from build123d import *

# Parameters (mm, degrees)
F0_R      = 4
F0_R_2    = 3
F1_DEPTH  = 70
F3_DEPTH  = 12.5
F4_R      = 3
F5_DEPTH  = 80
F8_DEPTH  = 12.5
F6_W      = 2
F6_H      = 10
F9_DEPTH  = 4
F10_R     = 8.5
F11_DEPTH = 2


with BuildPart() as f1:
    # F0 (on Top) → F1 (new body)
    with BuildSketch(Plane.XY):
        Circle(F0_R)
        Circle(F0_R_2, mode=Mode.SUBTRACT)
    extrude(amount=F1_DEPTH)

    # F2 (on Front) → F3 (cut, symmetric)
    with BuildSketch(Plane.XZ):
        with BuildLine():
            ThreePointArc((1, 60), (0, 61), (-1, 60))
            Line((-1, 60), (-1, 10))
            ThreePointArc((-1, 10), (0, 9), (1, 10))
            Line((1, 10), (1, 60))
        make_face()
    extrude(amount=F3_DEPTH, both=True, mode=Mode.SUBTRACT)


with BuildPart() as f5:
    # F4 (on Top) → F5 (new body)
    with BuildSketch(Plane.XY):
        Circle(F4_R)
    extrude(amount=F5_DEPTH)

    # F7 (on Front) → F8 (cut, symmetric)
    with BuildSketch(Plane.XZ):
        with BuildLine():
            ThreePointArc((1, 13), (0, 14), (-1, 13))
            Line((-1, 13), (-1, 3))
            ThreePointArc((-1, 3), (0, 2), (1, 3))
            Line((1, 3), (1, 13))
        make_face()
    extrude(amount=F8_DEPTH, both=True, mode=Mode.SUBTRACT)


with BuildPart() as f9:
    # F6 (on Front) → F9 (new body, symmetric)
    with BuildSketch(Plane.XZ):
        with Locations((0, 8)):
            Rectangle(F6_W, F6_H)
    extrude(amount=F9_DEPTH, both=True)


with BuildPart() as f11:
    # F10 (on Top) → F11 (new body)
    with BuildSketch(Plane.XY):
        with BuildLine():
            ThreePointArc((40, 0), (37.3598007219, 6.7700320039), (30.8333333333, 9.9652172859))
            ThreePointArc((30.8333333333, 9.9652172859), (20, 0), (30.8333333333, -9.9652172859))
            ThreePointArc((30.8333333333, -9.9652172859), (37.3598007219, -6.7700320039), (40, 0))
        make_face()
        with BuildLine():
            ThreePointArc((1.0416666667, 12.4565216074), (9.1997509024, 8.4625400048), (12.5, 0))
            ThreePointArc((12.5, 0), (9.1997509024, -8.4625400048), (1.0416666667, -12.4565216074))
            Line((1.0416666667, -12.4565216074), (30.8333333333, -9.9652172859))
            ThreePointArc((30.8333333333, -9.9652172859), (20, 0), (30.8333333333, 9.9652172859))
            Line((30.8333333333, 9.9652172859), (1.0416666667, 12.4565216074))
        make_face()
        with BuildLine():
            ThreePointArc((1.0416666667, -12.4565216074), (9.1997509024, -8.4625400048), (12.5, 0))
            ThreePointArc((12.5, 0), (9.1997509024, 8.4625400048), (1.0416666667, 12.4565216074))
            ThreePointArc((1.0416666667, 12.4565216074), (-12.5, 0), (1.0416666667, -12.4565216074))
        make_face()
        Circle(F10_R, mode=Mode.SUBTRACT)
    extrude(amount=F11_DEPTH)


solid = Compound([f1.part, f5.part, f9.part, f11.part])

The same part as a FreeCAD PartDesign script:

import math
import FreeCAD as App
import Part
import Sketcher
from FreeCAD import Vector


def add_polygon(sketch, points):
    """Adds a closed chain of lines whose ends are joined by coincident constraints."""
    first, n = sketch.GeometryCount, len(points)
    for a, b in zip(points, points[1:] + points[:1]):
        sketch.addGeometry(Part.LineSegment(App.Vector(*a, 0), App.Vector(*b, 0)), False)
    for i in range(n):
        sketch.addConstraint(Sketcher.Constraint("Coincident", first + i, 2, first + (i + 1) % n, 1))

doc = App.newDocument("Part")
body = doc.addObject("PartDesign::Body", "Body")

# Sketch on XY plane
sketch1 = body.newObject("Sketcher::SketchObject", "Sketch")
sketch1.AttachmentSupport = (doc.getObject("XY_Plane"), [""])
sketch1.MapMode = "FlatFace"
sketch1.addGeometry([
    Part.Circle(Vector(0, 0, 0), Vector(0, 0, 1), 4),
    Part.Circle(Vector(0, 0, 0), Vector(0, 0, 1), 3),
], False)
sketch1.addConstraint([
    Sketcher.Constraint("Coincident", 0, 3, -1, 1),
    Sketcher.Constraint("Coincident", 1, 3, -1, 1),
    Sketcher.Constraint("Diameter", 0, 8.0),
    Sketcher.Constraint("Diameter", 1, 6.0),
])
pad1 = body.newObject("PartDesign::Pad", "Pad")
pad1.Profile = sketch1
pad1.Length = 70

# Sketch on XZ plane
sketch2 = body.newObject("Sketcher::SketchObject", "Sketch001")
sketch2.AttachmentSupport = (doc.getObject("XZ_Plane"), [""])
sketch2.MapMode = "FlatFace"
sketch2.addGeometry([
    Part.ArcOfCircle(Part.Circle(Vector(0, 60, 0), Vector(0, 0, 1), 1), math.radians(0), math.radians(180)),
    Part.LineSegment(Vector(-1, 60, 0), Vector(-1, 10, 0)),
    Part.ArcOfCircle(Part.Circle(Vector(0, 10, 0), Vector(0, 0, 1), 1), math.radians(180), math.radians(360)),
    Part.LineSegment(Vector(1, 10, 0), Vector(1, 60, 0)),
], False)
sketch2.addConstraint([
    Sketcher.Constraint("Tangent", 0, 2, 1, 1),
    Sketcher.Constraint("Tangent", 1, 2, 2, 1),
    Sketcher.Constraint("Tangent", 2, 2, 3, 1),
    Sketcher.Constraint("Tangent", 3, 2, 0, 1),
    Sketcher.Constraint("Vertical", 1),
    Sketcher.Constraint("Vertical", 3),
    Sketcher.Constraint("PointOnObject", 0, 3, -2),
    Sketcher.Constraint("Radius", 0, 1.0),
    Sketcher.Constraint("DistanceY", 1, 2, 1, 1, 50.0),
    Sketcher.Constraint("DistanceY", -1, 1, 0, 3, 60.0),
])
pocket1 = body.newObject("PartDesign::Pocket", "Pocket")
pocket1.Profile = sketch2
pocket1.Length = 25
pocket1.Midplane = True
body2 = doc.addObject("PartDesign::Body", "Body001")

# Sketch on XY plane
sketch3 = body2.newObject("Sketcher::SketchObject", "Sketch002")
sketch3.AttachmentSupport = (doc.getObject("XY_Plane001"), [""])
sketch3.MapMode = "FlatFace"
sketch3.addGeometry(Part.Circle(Vector(0, 0, 0), Vector(0, 0, 1), 3), False)
sketch3.addConstraint([
    Sketcher.Constraint("Coincident", 0, 3, -1, 1),
    Sketcher.Constraint("Diameter", 0, 6.0),
])
pad2 = body2.newObject("PartDesign::Pad", "Pad001")
pad2.Profile = sketch3
pad2.Length = 80

# Sketch on XZ plane
sketch4 = body2.newObject("Sketcher::SketchObject", "Sketch003")
sketch4.AttachmentSupport = (doc.getObject("XZ_Plane001"), [""])
sketch4.MapMode = "FlatFace"
sketch4.addGeometry([
    Part.ArcOfCircle(Part.Circle(Vector(0, 13, 0), Vector(0, 0, 1), 1), math.radians(0), math.radians(180)),
    Part.LineSegment(Vector(-1, 13, 0), Vector(-1, 3, 0)),
    Part.ArcOfCircle(Part.Circle(Vector(0, 3, 0), Vector(0, 0, 1), 1), math.radians(180), math.radians(360)),
    Part.LineSegment(Vector(1, 3, 0), Vector(1, 13, 0)),
], False)
sketch4.addConstraint([
    Sketcher.Constraint("Tangent", 0, 2, 1, 1),
    Sketcher.Constraint("Tangent", 1, 2, 2, 1),
    Sketcher.Constraint("Tangent", 2, 2, 3, 1),
    Sketcher.Constraint("Tangent", 3, 2, 0, 1),
    Sketcher.Constraint("Vertical", 1),
    Sketcher.Constraint("Vertical", 3),
    Sketcher.Constraint("PointOnObject", 0, 3, -2),
    Sketcher.Constraint("Radius", 0, 1.0),
    Sketcher.Constraint("DistanceY", 1, 2, 1, 1, 10.0),
    Sketcher.Constraint("DistanceY", -1, 1, 0, 3, 13.0),
])
pocket2 = body2.newObject("PartDesign::Pocket", "Pocket001")
pocket2.Profile = sketch4
pocket2.Length = 25
pocket2.Midplane = True
body3 = doc.addObject("PartDesign::Body", "Body002")

# Sketch on XZ plane
sketch5 = body3.newObject("Sketcher::SketchObject", "Sketch004")
sketch5.AttachmentSupport = (doc.getObject("XZ_Plane002"), [""])
sketch5.MapMode = "FlatFace"
add_polygon(sketch5, [(-1, 13), (-1, 3), (1, 3), (1, 13)])  # lines 0-3
sketch5.addConstraint([
    Sketcher.Constraint("Vertical", 0),
    Sketcher.Constraint("Horizontal", 1),
    Sketcher.Constraint("Vertical", 2),
    Sketcher.Constraint("Horizontal", 3),
    Sketcher.Constraint("DistanceX", 1, 1, 1, 2, 2.0),
    Sketcher.Constraint("DistanceY", 0, 2, 0, 1, 10.0),
    Sketcher.Constraint("DistanceX", 0, 2, -1, 1, 1.0),
    Sketcher.Constraint("DistanceY", -1, 1, 0, 2, 3.0),
])
pad3 = body3.newObject("PartDesign::Pad", "Pad002")
pad3.Profile = sketch5
pad3.Length = 8
pad3.Midplane = True
body4 = doc.addObject("PartDesign::Body", "Body003")

# Sketch on XY plane
sketch6 = body4.newObject("Sketcher::SketchObject", "Sketch005")
sketch6.AttachmentSupport = (doc.getObject("XY_Plane003"), [""])
sketch6.MapMode = "FlatFace"
sketch6.addGeometry([
    Part.ArcOfCircle(Part.Circle(Vector(30, 0, 0), Vector(0, 0, 1), 10), math.radians(-85), math.radians(85)),  # 0
    Part.LineSegment(Vector(31, 10, 0), Vector(1, 12, 0)),  # 1
    Part.ArcOfCircle(Part.Circle(Vector(0, 0, 0), Vector(0, 0, 1), 12), math.radians(85), math.radians(275)),  # 2
    Part.LineSegment(Vector(1, -12, 0), Vector(31, -10, 0)),  # 3
    Part.Circle(Vector(0, 0, 0), Vector(0, 0, 1), 8),  # 4
], False)
sketch6.addConstraint([
    Sketcher.Constraint("Tangent", 0, 2, 1, 1),
    Sketcher.Constraint("Tangent", 1, 2, 2, 1),
    Sketcher.Constraint("Tangent", 2, 2, 3, 1),
    Sketcher.Constraint("Tangent", 3, 2, 0, 1),
    Sketcher.Constraint("Coincident", 2, 3, -1, 1),
    Sketcher.Constraint("Coincident", 4, 3, -1, 1),
    Sketcher.Constraint("PointOnObject", 0, 3, -1),
    Sketcher.Constraint("Diameter", 4, 17.0),
    Sketcher.Constraint("Radius", 0, 10.0),
    Sketcher.Constraint("Radius", 2, 12.5),
    Sketcher.Constraint("DistanceX", -1, 1, 0, 3, 30.0),
])
pad4 = body4.newObject("PartDesign::Pad", "Pad003")
pad4.Profile = sketch6
pad4.Length = 2

doc.recompute()
